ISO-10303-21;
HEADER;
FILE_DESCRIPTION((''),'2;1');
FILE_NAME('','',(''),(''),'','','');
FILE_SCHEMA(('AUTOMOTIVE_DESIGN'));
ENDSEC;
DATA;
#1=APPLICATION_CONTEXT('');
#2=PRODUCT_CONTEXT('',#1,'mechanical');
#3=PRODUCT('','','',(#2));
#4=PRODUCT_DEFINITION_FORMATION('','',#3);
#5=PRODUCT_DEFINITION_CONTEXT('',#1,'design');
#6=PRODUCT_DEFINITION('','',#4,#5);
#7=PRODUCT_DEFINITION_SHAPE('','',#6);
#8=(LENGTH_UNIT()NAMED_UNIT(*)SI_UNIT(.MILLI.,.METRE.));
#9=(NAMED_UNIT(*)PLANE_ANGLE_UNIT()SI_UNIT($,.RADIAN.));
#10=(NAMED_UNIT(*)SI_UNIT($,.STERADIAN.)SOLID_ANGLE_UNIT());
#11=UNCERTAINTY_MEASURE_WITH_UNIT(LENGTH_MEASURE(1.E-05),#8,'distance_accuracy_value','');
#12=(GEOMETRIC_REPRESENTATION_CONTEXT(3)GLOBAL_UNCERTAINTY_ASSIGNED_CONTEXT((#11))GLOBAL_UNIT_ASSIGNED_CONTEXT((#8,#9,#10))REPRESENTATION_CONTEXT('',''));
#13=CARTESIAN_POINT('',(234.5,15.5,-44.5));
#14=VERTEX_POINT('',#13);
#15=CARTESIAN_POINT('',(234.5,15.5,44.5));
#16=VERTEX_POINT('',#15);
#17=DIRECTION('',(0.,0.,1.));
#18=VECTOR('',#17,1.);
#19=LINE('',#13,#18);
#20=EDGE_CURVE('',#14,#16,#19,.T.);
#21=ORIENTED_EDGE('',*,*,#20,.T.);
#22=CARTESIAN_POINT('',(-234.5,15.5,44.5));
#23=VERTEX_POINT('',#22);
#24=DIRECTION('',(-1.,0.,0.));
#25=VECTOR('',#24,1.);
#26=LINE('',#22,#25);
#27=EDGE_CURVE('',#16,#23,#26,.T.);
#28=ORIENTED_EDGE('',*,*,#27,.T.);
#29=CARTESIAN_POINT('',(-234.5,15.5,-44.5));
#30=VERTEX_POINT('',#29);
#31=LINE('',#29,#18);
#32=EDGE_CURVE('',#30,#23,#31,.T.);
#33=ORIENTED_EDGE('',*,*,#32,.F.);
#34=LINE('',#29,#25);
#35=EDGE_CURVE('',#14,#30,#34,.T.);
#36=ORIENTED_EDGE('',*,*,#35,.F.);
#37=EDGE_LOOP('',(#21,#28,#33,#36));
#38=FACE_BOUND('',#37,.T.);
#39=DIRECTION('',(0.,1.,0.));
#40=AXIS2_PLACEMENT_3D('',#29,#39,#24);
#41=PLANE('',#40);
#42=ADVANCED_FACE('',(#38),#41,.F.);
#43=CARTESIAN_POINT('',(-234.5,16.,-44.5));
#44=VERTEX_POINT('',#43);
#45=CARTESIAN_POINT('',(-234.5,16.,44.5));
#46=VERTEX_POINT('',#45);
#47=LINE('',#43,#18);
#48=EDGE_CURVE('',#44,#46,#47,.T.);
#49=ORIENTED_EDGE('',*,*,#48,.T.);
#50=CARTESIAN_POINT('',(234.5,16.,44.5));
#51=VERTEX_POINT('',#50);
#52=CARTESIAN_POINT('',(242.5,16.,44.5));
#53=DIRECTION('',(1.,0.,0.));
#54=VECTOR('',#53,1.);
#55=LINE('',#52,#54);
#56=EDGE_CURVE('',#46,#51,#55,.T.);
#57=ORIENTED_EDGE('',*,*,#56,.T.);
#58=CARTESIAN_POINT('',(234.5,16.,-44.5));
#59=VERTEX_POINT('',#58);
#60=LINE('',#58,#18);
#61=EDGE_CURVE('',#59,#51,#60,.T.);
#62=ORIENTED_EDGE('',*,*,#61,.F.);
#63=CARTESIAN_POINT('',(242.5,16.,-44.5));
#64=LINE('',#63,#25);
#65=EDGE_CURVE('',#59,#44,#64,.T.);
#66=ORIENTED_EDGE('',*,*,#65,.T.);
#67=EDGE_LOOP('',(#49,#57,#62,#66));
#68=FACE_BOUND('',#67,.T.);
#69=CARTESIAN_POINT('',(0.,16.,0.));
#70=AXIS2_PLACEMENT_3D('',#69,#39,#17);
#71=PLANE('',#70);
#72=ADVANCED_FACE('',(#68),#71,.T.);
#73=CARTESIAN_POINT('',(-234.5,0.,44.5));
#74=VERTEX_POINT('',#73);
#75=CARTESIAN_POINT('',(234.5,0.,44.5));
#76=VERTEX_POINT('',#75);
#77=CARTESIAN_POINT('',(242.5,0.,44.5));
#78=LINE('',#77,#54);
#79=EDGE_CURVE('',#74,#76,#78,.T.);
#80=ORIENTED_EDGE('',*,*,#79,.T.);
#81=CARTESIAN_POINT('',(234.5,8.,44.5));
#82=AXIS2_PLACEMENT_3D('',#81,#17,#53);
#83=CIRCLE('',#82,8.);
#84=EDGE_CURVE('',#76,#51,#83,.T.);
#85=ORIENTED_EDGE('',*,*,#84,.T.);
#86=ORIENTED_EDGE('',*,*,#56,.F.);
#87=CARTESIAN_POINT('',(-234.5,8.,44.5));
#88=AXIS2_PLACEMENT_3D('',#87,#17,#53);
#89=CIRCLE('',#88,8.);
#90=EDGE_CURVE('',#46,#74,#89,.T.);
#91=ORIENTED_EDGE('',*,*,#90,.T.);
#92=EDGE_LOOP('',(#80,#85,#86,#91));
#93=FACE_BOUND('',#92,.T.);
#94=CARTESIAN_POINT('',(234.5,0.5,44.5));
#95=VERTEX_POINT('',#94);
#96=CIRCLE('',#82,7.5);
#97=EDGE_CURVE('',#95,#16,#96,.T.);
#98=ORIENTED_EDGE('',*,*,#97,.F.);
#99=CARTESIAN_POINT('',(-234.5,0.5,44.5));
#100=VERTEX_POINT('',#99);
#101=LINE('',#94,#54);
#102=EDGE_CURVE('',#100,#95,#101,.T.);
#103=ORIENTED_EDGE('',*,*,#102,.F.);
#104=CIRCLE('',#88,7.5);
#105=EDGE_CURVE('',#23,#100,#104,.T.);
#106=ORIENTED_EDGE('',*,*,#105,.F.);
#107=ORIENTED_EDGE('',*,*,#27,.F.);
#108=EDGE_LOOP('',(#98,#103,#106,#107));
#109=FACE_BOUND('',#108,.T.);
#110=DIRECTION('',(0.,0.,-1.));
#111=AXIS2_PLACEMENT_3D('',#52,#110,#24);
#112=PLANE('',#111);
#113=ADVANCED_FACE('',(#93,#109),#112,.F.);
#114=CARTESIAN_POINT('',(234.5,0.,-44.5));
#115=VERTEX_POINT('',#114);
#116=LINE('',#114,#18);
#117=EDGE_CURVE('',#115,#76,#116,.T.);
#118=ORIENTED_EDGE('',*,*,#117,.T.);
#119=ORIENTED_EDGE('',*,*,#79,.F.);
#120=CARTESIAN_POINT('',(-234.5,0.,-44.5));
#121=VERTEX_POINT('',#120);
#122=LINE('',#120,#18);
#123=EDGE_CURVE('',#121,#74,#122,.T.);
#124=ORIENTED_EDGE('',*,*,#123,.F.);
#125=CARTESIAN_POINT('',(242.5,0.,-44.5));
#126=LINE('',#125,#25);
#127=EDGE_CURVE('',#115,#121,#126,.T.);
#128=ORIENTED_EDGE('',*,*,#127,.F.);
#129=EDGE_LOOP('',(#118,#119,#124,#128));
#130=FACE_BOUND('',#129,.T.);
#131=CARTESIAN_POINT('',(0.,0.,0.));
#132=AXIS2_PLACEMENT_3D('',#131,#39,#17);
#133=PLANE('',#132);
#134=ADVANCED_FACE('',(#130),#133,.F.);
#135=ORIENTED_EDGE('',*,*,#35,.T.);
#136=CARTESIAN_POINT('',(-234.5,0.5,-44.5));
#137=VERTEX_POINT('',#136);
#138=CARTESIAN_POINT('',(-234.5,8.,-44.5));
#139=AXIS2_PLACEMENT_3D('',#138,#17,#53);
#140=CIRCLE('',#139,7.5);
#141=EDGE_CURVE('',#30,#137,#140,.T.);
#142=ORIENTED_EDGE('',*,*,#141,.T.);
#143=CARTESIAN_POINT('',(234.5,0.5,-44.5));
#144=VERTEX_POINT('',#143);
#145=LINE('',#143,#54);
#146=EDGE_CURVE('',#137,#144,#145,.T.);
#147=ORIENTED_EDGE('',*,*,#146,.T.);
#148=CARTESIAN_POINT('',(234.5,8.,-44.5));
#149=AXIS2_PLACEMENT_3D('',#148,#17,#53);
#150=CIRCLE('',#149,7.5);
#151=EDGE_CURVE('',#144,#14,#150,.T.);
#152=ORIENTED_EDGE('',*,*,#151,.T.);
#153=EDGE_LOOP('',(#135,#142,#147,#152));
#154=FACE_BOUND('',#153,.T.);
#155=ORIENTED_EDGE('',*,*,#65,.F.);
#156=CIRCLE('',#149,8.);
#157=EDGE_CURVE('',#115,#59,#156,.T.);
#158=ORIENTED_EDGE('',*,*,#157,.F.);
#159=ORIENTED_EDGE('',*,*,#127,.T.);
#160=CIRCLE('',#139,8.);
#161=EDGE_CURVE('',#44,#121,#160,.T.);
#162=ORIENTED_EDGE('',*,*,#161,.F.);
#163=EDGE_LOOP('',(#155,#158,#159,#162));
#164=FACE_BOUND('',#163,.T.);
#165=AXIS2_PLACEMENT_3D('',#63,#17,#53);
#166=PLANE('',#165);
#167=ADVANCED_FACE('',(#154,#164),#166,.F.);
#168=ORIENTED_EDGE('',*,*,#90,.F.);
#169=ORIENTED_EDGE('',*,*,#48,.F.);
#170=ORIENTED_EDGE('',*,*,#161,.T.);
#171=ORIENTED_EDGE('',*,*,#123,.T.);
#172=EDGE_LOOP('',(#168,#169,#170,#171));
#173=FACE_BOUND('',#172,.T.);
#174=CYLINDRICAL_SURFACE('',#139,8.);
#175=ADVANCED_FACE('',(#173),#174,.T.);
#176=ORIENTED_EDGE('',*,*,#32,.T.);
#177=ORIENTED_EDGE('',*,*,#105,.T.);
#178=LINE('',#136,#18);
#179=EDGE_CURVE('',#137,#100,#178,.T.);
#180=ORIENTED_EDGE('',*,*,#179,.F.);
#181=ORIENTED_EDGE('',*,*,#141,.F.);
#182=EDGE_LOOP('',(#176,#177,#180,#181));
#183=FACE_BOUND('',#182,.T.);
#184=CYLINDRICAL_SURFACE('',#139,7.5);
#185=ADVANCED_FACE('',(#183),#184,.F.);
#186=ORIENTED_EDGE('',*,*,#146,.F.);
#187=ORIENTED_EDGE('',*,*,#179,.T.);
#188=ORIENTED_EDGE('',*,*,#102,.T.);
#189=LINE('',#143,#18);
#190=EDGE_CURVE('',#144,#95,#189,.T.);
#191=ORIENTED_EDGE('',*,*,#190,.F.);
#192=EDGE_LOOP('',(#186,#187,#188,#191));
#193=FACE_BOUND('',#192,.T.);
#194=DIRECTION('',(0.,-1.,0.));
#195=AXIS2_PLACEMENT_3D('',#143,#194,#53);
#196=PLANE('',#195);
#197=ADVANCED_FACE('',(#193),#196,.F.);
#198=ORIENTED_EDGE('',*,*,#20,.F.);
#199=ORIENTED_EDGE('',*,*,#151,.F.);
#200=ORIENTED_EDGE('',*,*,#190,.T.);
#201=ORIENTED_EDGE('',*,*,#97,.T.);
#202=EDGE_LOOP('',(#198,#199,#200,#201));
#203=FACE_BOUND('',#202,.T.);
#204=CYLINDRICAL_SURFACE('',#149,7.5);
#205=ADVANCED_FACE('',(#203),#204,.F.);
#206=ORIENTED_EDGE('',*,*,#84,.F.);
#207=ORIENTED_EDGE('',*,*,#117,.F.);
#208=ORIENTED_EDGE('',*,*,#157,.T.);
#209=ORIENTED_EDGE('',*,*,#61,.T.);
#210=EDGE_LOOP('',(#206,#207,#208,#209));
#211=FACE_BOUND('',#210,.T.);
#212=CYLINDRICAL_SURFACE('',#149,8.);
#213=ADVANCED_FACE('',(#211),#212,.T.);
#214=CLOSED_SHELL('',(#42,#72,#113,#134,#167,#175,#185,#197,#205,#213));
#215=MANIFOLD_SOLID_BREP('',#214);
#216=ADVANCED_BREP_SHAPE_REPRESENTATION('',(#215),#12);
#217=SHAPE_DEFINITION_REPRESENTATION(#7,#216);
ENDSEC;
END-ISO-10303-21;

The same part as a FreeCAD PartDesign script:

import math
import FreeCAD as App
import Part
import Sketcher

doc = App.newDocument("Part")
params = doc.addObject("Spreadsheet::Sheet", "Params")
for row, (alias, value) in enumerate([
    ("sketch1_width", "485 mm"),
    ("sketch1_height", "89 mm"),
    ("pad1_length", "16 mm"),
    ("sketch2_radius", "8 mm"),
    ("pocket1_length", "89 mm"),
    ("sketch3_radius", "8 mm"),
    ("pocket2_length", "89 mm"),
    ("sketch4_radius", "7.5 mm"),
    ("sketch4_width", "469 mm"),
    ("pocket3_length", "89 mm"),
], start=1):
    params.set(f"A{row}", alias)
    params.set(f"B{row}", "=" + value)
    params.setAlias(f"B{row}", alias)

body = doc.addObject("PartDesign::Body", "Body")

# Sketch on XZ plane
sketch1 = body.newObject("Sketcher::SketchObject", "Sketch")
sketch1.AttachmentSupport = (doc.getObject("XZ_Plane"), [""])
sketch1.MapMode = "FlatFace"
sketch1.addGeometry(Part.LineSegment(App.Vector(-242.5, -44.5, 0), App.Vector(-242.5, 44.5, 0)), False)
sketch1.addGeometry(Part.LineSegment(App.Vector(-242.5, 44.5, 0), App.Vector(242.5, 44.5, 0)), False)
sketch1.addGeometry(Part.LineSegment(App.Vector(242.5, 44.5, 0), App.Vector(242.5, -44.5, 0)), False)
sketch1.addGeometry(Part.LineSegment(App.Vector(242.5, -44.5, 0), App.Vector(-242.5, -44.5, 0)), False)
sketch1.addConstraint(Sketcher.Constraint("Coincident", 0, 2, 1, 1))
sketch1.addConstraint(Sketcher.Constraint("Coincident", 1, 2, 2, 1))
sketch1.addConstraint(Sketcher.Constraint("Coincident", 2, 2, 3, 1))
sketch1.addConstraint(Sketcher.Constraint("Coincident", 3, 2, 0, 1))
sketch1.addConstraint(Sketcher.Constraint("Vertical", 0))
sketch1.addConstraint(Sketcher.Constraint("Horizontal", 1))
sketch1.addConstraint(Sketcher.Constraint("Vertical", 2))
sketch1.addConstraint(Sketcher.Constraint("Horizontal", 3))
sketch1.addConstraint(Sketcher.Constraint("Symmetric", 0, 2, 2, 2, -1, 1))
sketch1.addConstraint(Sketcher.Constraint("DistanceX", 1, 1, 1, 2, 485.0))
sketch1.addConstraint(Sketcher.Constraint("DistanceY", 0, 1, 0, 2, 89.0))
sketch1.setExpression("Constraints[9]", "Params.sketch1_width")
sketch1.setExpression("Constraints[10]", "Params.sketch1_height")
pad1 = body.newObject("PartDesign::Pad", "Pad")
pad1.Profile = sketch1
pad1.setExpression("Length", "Params.pad1_length")
pad1.Reversed = True

# Sketch on XY plane
sketch2 = body.newObject("Sketcher::SketchObject", "Sketch001")
sketch2.AttachmentSupport = (doc.getObject("XY_Plane"), [""])
sketch2.MapMode = "FlatFace"
sketch2.AttachmentOffset = App.Placement(App.Vector(0, 0, 44.5), App.Rotation())
sketch2.addGeometry(Part.ArcOfCircle(Part.Circle(App.Vector(-234.5, 8, 0), App.Vector(0, 0, 1), 8), math.radians(-180), math.radians(-90)), False)
sketch2.addGeometry(Part.LineSegment(App.Vector(-242.5, 8, 0), App.Vector(-242.5, 0, 0)), False)
sketch2.addGeometry(Part.LineSegment(App.Vector(-242.5, 0, 0), App.Vector(-234.5, 0, 0)), False)
sketch2.addGeometry(Part.ArcOfCircle(Part.Circle(App.Vector(-234.5, 8, 0), App.Vector(0, 0, 1), 8), math.radians(90), math.radians(180)), False)
sketch2.addGeometry(Part.LineSegment(App.Vector(-234.5, 16, 0), App.Vector(-242.5, 16, 0)), False)
sketch2.addGeometry(Part.LineSegment(App.Vector(-242.5, 16, 0), App.Vector(-242.5, 8, 0)), False)
sketch2.addConstraint(Sketcher.Constraint("Tangent", 0, 1, 1, 1))
sketch2.addConstraint(Sketcher.Constraint("Coincident", 1, 2, 2, 1))
sketch2.addConstraint(Sketcher.Constraint("Tangent", 2, 2, 0, 2))
sketch2.addConstraint(Sketcher.Constraint("Tangent", 3, 1, 4, 1))
sketch2.addConstraint(Sketcher.Constraint("Coincident", 4, 2, 5, 1))
sketch2.addConstraint(Sketcher.Constraint("Tangent", 5, 2, 3, 2))
sketch2.addConstraint(Sketcher.Constraint("Vertical", 1))
sketch2.addConstraint(Sketcher.Constraint("Horizontal", 2))
sketch2.addConstraint(Sketcher.Constraint("Horizontal", 4))
sketch2.addConstraint(Sketcher.Constraint("Vertical", 5))
sketch2.addConstraint(Sketcher.Constraint("Coincident", 3, 3, 0, 3))
sketch2.addConstraint(Sketcher.Constraint("Equal", 0, 3))
sketch2.addConstraint(Sketcher.Constraint("PointOnObject", 1, 2, -1))
sketch2.addConstraint(Sketcher.Constraint("Radius", 0, 8.0))
sketch2.addConstraint(Sketcher.Constraint("DistanceX", 0, 3, -1, 1, 234.5))
sketch2.setExpression("Constraints[13]", "Params.sketch2_radius")
pocket1 = body.newObject("PartDesign::Pocket", "Pocket")
pocket1.Profile = sketch2
pocket1.setExpression("Length", "Params.pocket1_length")

# Sketch on XY plane
sketch3 = body.newObject("Sketcher::SketchObject", "Sketch002")
sketch3.AttachmentSupport = (doc.getObject("XY_Plane"), [""])
sketch3.MapMode = "FlatFace"
sketch3.AttachmentOffset = App.Placement(App.Vector(0, 0, 44.5), App.Rotation())
sketch3.addGeometry(Part.LineSegment(App.Vector(242.5, 16, 0), App.Vector(234.5, 16, 0)), False)
sketch3.addGeometry(Part.ArcOfCircle(Part.Circle(App.Vector(234.5, 8, 0), App.Vector(0, 0, 1), 8), math.radians(0), math.radians(90)), False)
sketch3.addGeometry(Part.LineSegment(App.Vector(242.5, 8, 0), App.Vector(242.5, 16, 0)), False)
sketch3.addGeometry(Part.LineSegment(App.Vector(242.5, 0, 0), App.Vector(242.5, 8, 0)), False)
sketch3.addGeometry(Part.ArcOfCircle(Part.Circle(App.Vector(234.5, 8, 0), App.Vector(0, 0, 1), 8), math.radians(-90), math.radians(0)), False)
sketch3.addGeometry(Part.LineSegment(App.Vector(234.5, 0, 0), App.Vector(242.5, 0, 0)), False)
sketch3.addConstraint(Sketcher.Constraint("Tangent", 0, 2, 1, 2))
sketch3.addConstraint(Sketcher.Constraint("Tangent", 1, 1, 2, 1))
sketch3.addConstraint(Sketcher.Constraint("Coincident", 2, 2, 0, 1))
sketch3.addConstraint(Sketcher.Constraint("Tangent", 3, 2, 4, 2))
sketch3.addConstraint(Sketcher.Constraint("Tangent", 4, 1, 5, 1))
sketch3.addConstraint(Sketcher.Constraint("Coincident", 5, 2, 3, 1))
sketch3.addConstraint(Sketcher.Constraint("Horizontal", 0))
sketch3.addConstraint(Sketcher.Constraint("Vertical", 2))
sketch3.addConstraint(Sketcher.Constraint("Vertical", 3))
sketch3.addConstraint(Sketcher.Constraint("Horizontal", 5))
sketch3.addConstraint(Sketcher.Constraint("Coincident", 4, 3, 1, 3))
sketch3.addConstraint(Sketcher.Constraint("Equal", 1, 4))
sketch3.addConstraint(Sketcher.Constraint("PointOnObject", 4, 1, -1))
sketch3.addConstraint(Sketcher.Constraint("Radius", 1, 8.0))
sketch3.addConstraint(Sketcher.Constraint("DistanceX", -1, 1, 1, 3, 234.5))
sketch3.setExpression("Constraints[13]", "Params.sketch3_radius")
pocket2 = body.newObject("PartDesign::Pocket", "Pocket001")
pocket2.Profile = sketch3
pocket2.setExpression("Length", "Params.pocket2_length")

# Sketch on XY plane
sketch4 = body.newObject("Sketcher::SketchObject", "Sketch003")
sketch4.AttachmentSupport = (doc.getObject("XY_Plane"), [""])
sketch4.MapMode = "FlatFace"
sketch4.AttachmentOffset = App.Placement(App.Vector(0, 0, 44.5), App.Rotation())
sketch4.addGeometry(Part.LineSegment(App.Vector(234.5, 15.5, 0), App.Vector(-234.5, 15.5, 0)), False)
sketch4.addGeometry(Part.ArcOfCircle(Part.Circle(App.Vector(-234.5, 8, 0), App.Vector(0, 0, 1), 7.5), math.radians(90), math.radians(270)), False)
sketch4.addGeometry(Part.LineSegment(App.Vector(-234.5, 0.5, 0), App.Vector(234.5, 0.5, 0)), False)
sketch4.addGeometry(Part.ArcOfCircle(Part.Circle(App.Vector(234.5, 8, 0), App.Vector(0, 0, 1), 7.5), math.radians(-90), math.radians(90)), False)
sketch4.addConstraint(Sketcher.Constraint("Tangent", 0, 2, 1, 1))
sketch4.addConstraint(Sketcher.Constraint("Tangent", 1, 2, 2, 1))
sketch4.addConstraint(Sketcher.Constraint("Tangent", 2, 2, 3, 1))
sketch4.addConstraint(Sketcher.Constraint("Tangent", 3, 2, 0, 1))
sketch4.addConstraint(Sketcher.Constraint("Horizontal", 0))
sketch4.addConstraint(Sketcher.Constraint("Horizontal", 2))
sketch4.addConstraint(Sketcher.Constraint("Radius", 1, 7.5))
sketch4.addConstraint(Sketcher.Constraint("DistanceX", 0, 2, 0, 1, 469.0))
sketch4.addConstraint(Sketcher.Constraint("DistanceY", -1, 1, 1, 3, 8.0))
sketch4.addConstraint(Sketcher.Constraint("DistanceX", 1, 3, -1, 1, 234.5))
sketch4.setExpression("Constraints[6]", "Params.sketch4_radius")
sketch4.setExpression("Constraints[7]", "Params.sketch4_width")
pocket3 = body.newObject("PartDesign::Pocket", "Pocket002")
pocket3.Profile = sketch4
pocket3.setExpression("Length", "Params.pocket3_length")

doc.recompute()
